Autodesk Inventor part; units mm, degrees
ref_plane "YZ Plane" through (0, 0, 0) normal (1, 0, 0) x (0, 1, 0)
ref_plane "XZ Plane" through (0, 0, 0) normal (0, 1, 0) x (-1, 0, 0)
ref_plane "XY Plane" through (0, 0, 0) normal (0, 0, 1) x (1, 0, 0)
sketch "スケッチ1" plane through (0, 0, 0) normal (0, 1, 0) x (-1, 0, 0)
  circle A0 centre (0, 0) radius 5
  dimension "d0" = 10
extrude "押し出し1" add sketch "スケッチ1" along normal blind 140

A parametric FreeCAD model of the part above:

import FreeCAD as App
import Part
import Sketcher
from FreeCAD import Vector
Q = App.Units.Quantity

doc = App.newDocument("Part")
body = doc.addObject("PartDesign::Body", "Body")

sketch1 = doc.addObject("Sketcher::SketchObject", "Sketch")
body.addObject(sketch1)
sketch1.AttachmentSupport = (doc.XZ_Plane, [""])
sketch1.MapMode = "FlatFace"
sketch1.addGeometry(Part.Circle(Vector(0, 0, 0), Vector(0, 0, 1), 5), False)
sketch1.addConstraint([
    Sketcher.Constraint("Coincident", 0, 3, -1, 1),
    Sketcher.Constraint("Diameter", 0, Q("10 mm")),
])
pad1 = doc.addObject("PartDesign::Pad", "Pad")
body.addObject(pad1)
pad1.Profile = sketch1
pad1.Length = 140
pad1.Reversed = True

doc.recompute()
